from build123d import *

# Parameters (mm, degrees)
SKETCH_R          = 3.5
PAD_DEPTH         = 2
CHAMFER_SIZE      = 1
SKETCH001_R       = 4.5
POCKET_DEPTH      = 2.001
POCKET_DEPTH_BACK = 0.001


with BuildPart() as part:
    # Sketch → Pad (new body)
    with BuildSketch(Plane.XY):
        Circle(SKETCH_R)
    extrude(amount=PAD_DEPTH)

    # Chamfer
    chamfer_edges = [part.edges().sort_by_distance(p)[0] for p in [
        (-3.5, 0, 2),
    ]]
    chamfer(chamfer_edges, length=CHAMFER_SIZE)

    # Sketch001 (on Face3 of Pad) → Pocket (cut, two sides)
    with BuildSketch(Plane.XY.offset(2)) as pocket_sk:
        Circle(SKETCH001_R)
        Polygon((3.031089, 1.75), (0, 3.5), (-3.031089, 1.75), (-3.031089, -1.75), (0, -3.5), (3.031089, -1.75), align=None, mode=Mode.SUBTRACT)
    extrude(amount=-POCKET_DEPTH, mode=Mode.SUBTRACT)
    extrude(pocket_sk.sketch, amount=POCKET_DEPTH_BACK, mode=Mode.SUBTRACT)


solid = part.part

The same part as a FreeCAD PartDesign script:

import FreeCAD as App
import Part
import Sketcher
Q = App.Units.Quantity


def edges_at(feature, points):
    """Names of the edges that pass closest to the given points."""
    edges = feature.Shape.Edges
    near = lambda p: min(range(len(edges)), key=lambda i: edges[i].distToShape(Part.Vertex(*p))[0])
    return sorted({f"Edge{near(p) + 1}" for p in points})

doc = App.newDocument("Part")
body = doc.addObject("PartDesign::Body", "Body")

# Sketch on XY plane
sketch1 = body.newObject("Sketcher::SketchObject", "Sketch")
sketch1.AttachmentSupport = (doc.getObject("XY_Plane"), [""])
sketch1.MapMode = "FlatFace"
sketch1.addGeometry(Part.Circle(App.Vector(0, 0, 0), App.Vector(0, 0, 1), 3.5), False)
sketch1.addConstraint(Sketcher.Constraint("Coincident", 0, 3, -1, 1))
sketch1.addConstraint(Sketcher.Constraint("Diameter", 0, 7.0))
pad1 = body.newObject("PartDesign::Pad", "Pad")
pad1.Profile = sketch1
pad1.Length = 2
doc.recompute()

chamfer = body.newObject("PartDesign::Chamfer", "Chamfer")
chamfer.Base = (pad1, edges_at(pad1, [(-3.5, 0, 2)]))
chamfer.Size = 1

# Sketch on XY plane
sketch2 = body.newObject("Sketcher::SketchObject", "Sketch001")
sketch2.AttachmentSupport = (doc.getObject("XY_Plane"), [""])
sketch2.MapMode = "FlatFace"
sketch2.AttachmentOffset = App.Placement(App.Vector(0, 0, 2), App.Rotation())
sketch2.addGeometry(Part.Circle(App.Vector(0, 0, 0), App.Vector(0, 0, 1), 4.5), False)
sketch2.addGeometry(Part.LineSegment(App.Vector(0, 3.5, 0), App.Vector(3, 1.8, 0)), False)
sketch2.addGeometry(Part.LineSegment(App.Vector(3, 1.8, 0), App.Vector(3, -1.8, 0)), False)
sketch2.addGeometry(Part.LineSegment(App.Vector(3, -1.8, 0), App.Vector(0, -3.5, 0)), False)
sketch2.addGeometry(Part.LineSegment(App.Vector(0, -3.5, 0), App.Vector(-3, -1.8, 0)), False)
sketch2.addGeometry(Part.LineSegment(App.Vector(-3, -1.8, 0), App.Vector(-3, 1.8, 0)), False)
sketch2.addGeometry(Part.LineSegment(App.Vector(-3, 1.8, 0), App.Vector(0, 3.5, 0)), False)
sketch2.addConstraint(Sketcher.Constraint("Coincident", 1, 2, 2, 1))
sketch2.addConstraint(Sketcher.Constraint("Coincident", 2, 2, 3, 1))
sketch2.addConstraint(Sketcher.Constraint("Coincident", 3, 2, 4, 1))
sketch2.addConstraint(Sketcher.Constraint("Coincident", 4, 2, 5, 1))
sketch2.addConstraint(Sketcher.Constraint("Coincident", 5, 2, 6, 1))
sketch2.addConstraint(Sketcher.Constraint("Coincident", 6, 2, 1, 1))
sketch2.addConstraint(Sketcher.Constraint("Vertical", 2))
sketch2.addConstraint(Sketcher.Constraint("Vertical", 5))
sketch2.addConstraint(Sketcher.Constraint("Coincident", 0, 3, -1, 1))
sketch2.addConstraint(Sketcher.Constraint("Symmetric", 1, 2, 4, 2, -1, 1))
sketch2.addConstraint(Sketcher.Constraint("Symmetric", 3, 2, 6, 2, -1, 1))
sketch2.addConstraint(Sketcher.Constraint("PointOnObject", 3, 2, -2))
sketch2.addConstraint(Sketcher.Constraint("Parallel", 3, 6))
sketch2.addConstraint(Sketcher.Constraint("Horizontal", 2, 2, 4, 2))
sketch2.addConstraint(Sketcher.Constraint("Diameter", 0, 9.0))
sketch2.addConstraint(Sketcher.Constraint("Angle", 1, Q("-29.999999 deg")))
sketch2.addConstraint(Sketcher.Constraint("DistanceY", 2, 2, 2, 1, 3.5))
sketch2.addConstraint(Sketcher.Constraint("Distance", 1, 3.5))
pocket1 = body.newObject("PartDesign::Pocket", "Pocket")
pocket1.Profile = sketch2
pocket1.Type = "ThroughAll"
pocket1.Midplane = True

doc.recompute()
